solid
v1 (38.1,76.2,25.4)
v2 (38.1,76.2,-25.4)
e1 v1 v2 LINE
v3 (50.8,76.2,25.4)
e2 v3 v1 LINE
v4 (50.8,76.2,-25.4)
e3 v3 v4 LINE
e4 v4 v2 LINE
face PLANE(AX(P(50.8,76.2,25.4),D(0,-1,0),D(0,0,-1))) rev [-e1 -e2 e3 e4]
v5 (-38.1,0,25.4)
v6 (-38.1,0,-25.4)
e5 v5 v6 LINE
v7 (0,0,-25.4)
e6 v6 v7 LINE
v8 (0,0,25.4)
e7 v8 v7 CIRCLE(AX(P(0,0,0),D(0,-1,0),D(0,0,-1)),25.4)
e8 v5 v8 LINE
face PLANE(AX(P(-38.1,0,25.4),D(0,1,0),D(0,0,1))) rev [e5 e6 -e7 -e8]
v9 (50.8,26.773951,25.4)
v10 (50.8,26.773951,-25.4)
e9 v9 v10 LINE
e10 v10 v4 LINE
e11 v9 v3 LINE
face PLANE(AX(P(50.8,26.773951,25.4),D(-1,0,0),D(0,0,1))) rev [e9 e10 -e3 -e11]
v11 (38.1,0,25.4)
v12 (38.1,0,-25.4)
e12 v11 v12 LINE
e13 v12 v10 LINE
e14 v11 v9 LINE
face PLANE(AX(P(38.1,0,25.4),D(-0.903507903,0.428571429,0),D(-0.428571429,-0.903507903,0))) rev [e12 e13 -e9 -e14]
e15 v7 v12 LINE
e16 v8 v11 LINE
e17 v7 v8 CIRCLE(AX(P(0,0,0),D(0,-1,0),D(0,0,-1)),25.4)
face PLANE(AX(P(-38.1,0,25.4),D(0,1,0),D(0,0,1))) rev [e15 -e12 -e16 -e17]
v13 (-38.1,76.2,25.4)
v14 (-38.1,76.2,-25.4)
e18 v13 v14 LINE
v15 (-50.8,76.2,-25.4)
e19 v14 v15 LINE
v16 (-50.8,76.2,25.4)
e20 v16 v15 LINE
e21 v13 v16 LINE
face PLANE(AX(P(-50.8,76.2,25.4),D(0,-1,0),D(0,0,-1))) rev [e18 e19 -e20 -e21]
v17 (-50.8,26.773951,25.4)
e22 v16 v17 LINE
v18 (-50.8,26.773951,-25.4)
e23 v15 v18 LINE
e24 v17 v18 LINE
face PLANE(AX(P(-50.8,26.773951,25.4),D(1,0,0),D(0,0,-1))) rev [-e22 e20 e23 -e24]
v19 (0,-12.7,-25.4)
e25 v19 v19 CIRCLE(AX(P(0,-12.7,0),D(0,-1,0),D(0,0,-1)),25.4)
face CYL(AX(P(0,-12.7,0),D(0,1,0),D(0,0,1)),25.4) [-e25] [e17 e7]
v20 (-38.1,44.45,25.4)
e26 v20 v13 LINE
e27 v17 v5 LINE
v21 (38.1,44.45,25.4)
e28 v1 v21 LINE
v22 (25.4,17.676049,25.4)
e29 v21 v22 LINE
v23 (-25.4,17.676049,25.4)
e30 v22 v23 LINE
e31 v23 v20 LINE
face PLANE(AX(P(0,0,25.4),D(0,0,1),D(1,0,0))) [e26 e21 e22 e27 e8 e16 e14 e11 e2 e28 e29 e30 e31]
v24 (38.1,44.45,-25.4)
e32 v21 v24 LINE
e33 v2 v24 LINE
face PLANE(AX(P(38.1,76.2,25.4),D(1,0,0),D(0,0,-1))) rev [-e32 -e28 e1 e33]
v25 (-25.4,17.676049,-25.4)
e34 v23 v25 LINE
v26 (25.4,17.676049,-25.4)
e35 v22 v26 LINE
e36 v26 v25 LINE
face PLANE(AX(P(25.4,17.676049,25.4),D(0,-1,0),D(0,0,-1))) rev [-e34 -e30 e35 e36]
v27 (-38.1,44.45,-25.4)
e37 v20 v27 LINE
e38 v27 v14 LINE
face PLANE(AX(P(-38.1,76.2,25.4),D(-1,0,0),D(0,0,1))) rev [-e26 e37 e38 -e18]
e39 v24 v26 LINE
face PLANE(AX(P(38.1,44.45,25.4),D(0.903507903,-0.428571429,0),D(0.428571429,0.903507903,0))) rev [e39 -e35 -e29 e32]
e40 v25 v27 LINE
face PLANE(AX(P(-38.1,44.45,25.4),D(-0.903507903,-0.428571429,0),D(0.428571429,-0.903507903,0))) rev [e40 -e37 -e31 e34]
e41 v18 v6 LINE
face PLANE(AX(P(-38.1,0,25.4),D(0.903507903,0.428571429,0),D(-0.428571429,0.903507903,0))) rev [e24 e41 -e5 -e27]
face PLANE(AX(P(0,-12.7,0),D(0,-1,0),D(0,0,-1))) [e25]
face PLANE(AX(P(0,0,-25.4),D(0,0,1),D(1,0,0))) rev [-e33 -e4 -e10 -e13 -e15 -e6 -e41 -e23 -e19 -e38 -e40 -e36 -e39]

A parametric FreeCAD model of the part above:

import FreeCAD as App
import Part
import Sketcher

V = App.Vector
Q = App.Units.Quantity

doc = App.newDocument("Part")
params = doc.addObject("Spreadsheet::Sheet", "Params")
for row, (alias, value) in enumerate([
    ("sketch1_width", "3 in"),
    ("sketch1_width2", "2 in"),
    ("sketch1_height", "1.25 in"),
    ("pad1_length", "2 in"),
    ("sketch2_diameter", "2 in"),
    ("pad2_length", "0.5 in"),
], start=1):
    params.set(f"A{row}", alias)
    params.set(f"B{row}", "=" + value)
    params.setAlias(f"B{row}", alias)

body = doc.addObject("PartDesign::Body", "Body")

sketch1 = body.newObject("Sketcher::SketchObject", "Sketch")
sketch1.AttachmentSupport = (doc.getObject("XY_Plane"), [""])
sketch1.MapMode = "FlatFace"
sketch1.addGeometry(Part.LineSegment(V(-38, 0, 0), V(38, 0, 0)), False)
sketch1.addGeometry(Part.LineSegment(V(38, 0, 0), V(51, 27, 0)), False)
sketch1.addGeometry(Part.LineSegment(V(51, 27, 0), V(51, 76, 0)), False)
sketch1.addGeometry(Part.LineSegment(V(51, 76, 0), V(38, 76, 0)), False)
sketch1.addGeometry(Part.LineSegment(V(38, 76, 0), V(38, 44, 0)), False)
sketch1.addGeometry(Part.LineSegment(V(38, 44, 0), V(25, 18, 0)), False)
sketch1.addGeometry(Part.LineSegment(V(25, 18, 0), V(-25, 18, 0)), False)
sketch1.addGeometry(Part.LineSegment(V(-25, 18, 0), V(-38, 44, 0)), False)
sketch1.addGeometry(Part.LineSegment(V(-38, 44, 0), V(-38, 76, 0)), False)
sketch1.addGeometry(Part.LineSegment(V(-38, 76, 0), V(-51, 76, 0)), False)
sketch1.addGeometry(Part.LineSegment(V(-51, 76, 0), V(-51, 27, 0)), False)
sketch1.addGeometry(Part.LineSegment(V(-51, 27, 0), V(-38, 0, 0)), False)
sketch1.addConstraint(Sketcher.Constraint("Coincident", 0, 2, 1, 1))
sketch1.addConstraint(Sketcher.Constraint("Coincident", 1, 2, 2, 1))
sketch1.addConstraint(Sketcher.Constraint("Coincident", 2, 2, 3, 1))
sketch1.addConstraint(Sketcher.Constraint("Coincident", 3, 2, 4, 1))
sketch1.addConstraint(Sketcher.Constraint("Coincident", 4, 2, 5, 1))
sketch1.addConstraint(Sketcher.Constraint("Coincident", 5, 2, 6, 1))
sketch1.addConstraint(Sketcher.Constraint("Coincident", 6, 2, 7, 1))
sketch1.addConstraint(Sketcher.Constraint("Coincident", 7, 2, 8, 1))
sketch1.addConstraint(Sketcher.Constraint("Coincident", 8, 2, 9, 1))
sketch1.addConstraint(Sketcher.Constraint("Coincident", 9, 2, 10, 1))
sketch1.addConstraint(Sketcher.Constraint("Coincident", 10, 2, 11, 1))
sketch1.addConstraint(Sketcher.Constraint("Coincident", 11, 2, 0, 1))
sketch1.addConstraint(Sketcher.Constraint("Horizontal", 0))
sketch1.addConstraint(Sketcher.Constraint("Vertical", 2))
sketch1.addConstraint(Sketcher.Constraint("Horizontal", 3))
sketch1.addConstraint(Sketcher.Constraint("Vertical", 4))
sketch1.addConstraint(Sketcher.Constraint("Horizontal", 6))
sketch1.addConstraint(Sketcher.Constraint("Vertical", 8))
sketch1.addConstraint(Sketcher.Constraint("Horizontal", 9))
sketch1.addConstraint(Sketcher.Constraint("Vertical", 10))
sketch1.addConstraint(Sketcher.Constraint("Symmetric", 0, 2, 11, 2, -1, 1))
sketch1.addConstraint(Sketcher.Constraint("Symmetric", 4, 2, 7, 2, -2))
sketch1.addConstraint(Sketcher.Constraint("Symmetric", 2, 2, 9, 2, -2))
sketch1.addConstraint(Sketcher.Constraint("Parallel", 1, 5))
sketch1.addConstraint(Sketcher.Constraint("Parallel", 7, 11))
sketch1.addConstraint(Sketcher.Constraint("Horizontal", 1, 2, 10, 2))
sketch1.addConstraint(Sketcher.Constraint("Vertical", 0, 2, 3, 2))
sketch1.addConstraint(Sketcher.Constraint("Equal", 1, 5))
sketch1.addConstraint(Sketcher.Constraint("DistanceX", 0, 1, 0, 2, Q("3 in")))
sketch1.addConstraint(Sketcher.Constraint("DistanceX", 6, 2, 6, 1, Q("2 in")))
sketch1.addConstraint(Sketcher.Constraint("DistanceY", -1, 1, 2, 2, Q("3 in")))
sketch1.addConstraint(Sketcher.Constraint("DistanceY", 4, 2, 4, 1, Q("1.25 in")))
sketch1.addConstraint(Sketcher.Constraint("DistanceY", 2, 1, 2, 2, Q("49.426049 mm")))
sketch1.setExpression("Constraints[28]", "Params.sketch1_width")
sketch1.setExpression("Constraints[29]", "Params.sketch1_width2")
sketch1.setExpression("Constraints[31]", "Params.sketch1_height")
pad1 = body.newObject("PartDesign::Pad", "Pad")
pad1.Profile = sketch1
pad1.setExpression("Length", "Params.pad1_length")
pad1.Midplane = True

sketch2 = body.newObject("Sketcher::SketchObject", "Sketch001")
sketch2.AttachmentSupport = (doc.getObject("XZ_Plane"), [""])
sketch2.MapMode = "FlatFace"
sketch2.addGeometry(Part.Circle(V(0, 0, 0), V(0, 0, 1), 25), False)
sketch2.addConstraint(Sketcher.Constraint("Coincident", 0, 3, -1, 1))
sketch2.addConstraint(Sketcher.Constraint("Diameter", 0, Q("2 in")))
sketch2.setExpression("Constraints[1]", "Params.sketch2_diameter")
pad2 = body.newObject("PartDesign::Pad", "Pad001")
pad2.Profile = sketch2
pad2.setExpression("Length", "Params.pad2_length")

doc.recompute()
